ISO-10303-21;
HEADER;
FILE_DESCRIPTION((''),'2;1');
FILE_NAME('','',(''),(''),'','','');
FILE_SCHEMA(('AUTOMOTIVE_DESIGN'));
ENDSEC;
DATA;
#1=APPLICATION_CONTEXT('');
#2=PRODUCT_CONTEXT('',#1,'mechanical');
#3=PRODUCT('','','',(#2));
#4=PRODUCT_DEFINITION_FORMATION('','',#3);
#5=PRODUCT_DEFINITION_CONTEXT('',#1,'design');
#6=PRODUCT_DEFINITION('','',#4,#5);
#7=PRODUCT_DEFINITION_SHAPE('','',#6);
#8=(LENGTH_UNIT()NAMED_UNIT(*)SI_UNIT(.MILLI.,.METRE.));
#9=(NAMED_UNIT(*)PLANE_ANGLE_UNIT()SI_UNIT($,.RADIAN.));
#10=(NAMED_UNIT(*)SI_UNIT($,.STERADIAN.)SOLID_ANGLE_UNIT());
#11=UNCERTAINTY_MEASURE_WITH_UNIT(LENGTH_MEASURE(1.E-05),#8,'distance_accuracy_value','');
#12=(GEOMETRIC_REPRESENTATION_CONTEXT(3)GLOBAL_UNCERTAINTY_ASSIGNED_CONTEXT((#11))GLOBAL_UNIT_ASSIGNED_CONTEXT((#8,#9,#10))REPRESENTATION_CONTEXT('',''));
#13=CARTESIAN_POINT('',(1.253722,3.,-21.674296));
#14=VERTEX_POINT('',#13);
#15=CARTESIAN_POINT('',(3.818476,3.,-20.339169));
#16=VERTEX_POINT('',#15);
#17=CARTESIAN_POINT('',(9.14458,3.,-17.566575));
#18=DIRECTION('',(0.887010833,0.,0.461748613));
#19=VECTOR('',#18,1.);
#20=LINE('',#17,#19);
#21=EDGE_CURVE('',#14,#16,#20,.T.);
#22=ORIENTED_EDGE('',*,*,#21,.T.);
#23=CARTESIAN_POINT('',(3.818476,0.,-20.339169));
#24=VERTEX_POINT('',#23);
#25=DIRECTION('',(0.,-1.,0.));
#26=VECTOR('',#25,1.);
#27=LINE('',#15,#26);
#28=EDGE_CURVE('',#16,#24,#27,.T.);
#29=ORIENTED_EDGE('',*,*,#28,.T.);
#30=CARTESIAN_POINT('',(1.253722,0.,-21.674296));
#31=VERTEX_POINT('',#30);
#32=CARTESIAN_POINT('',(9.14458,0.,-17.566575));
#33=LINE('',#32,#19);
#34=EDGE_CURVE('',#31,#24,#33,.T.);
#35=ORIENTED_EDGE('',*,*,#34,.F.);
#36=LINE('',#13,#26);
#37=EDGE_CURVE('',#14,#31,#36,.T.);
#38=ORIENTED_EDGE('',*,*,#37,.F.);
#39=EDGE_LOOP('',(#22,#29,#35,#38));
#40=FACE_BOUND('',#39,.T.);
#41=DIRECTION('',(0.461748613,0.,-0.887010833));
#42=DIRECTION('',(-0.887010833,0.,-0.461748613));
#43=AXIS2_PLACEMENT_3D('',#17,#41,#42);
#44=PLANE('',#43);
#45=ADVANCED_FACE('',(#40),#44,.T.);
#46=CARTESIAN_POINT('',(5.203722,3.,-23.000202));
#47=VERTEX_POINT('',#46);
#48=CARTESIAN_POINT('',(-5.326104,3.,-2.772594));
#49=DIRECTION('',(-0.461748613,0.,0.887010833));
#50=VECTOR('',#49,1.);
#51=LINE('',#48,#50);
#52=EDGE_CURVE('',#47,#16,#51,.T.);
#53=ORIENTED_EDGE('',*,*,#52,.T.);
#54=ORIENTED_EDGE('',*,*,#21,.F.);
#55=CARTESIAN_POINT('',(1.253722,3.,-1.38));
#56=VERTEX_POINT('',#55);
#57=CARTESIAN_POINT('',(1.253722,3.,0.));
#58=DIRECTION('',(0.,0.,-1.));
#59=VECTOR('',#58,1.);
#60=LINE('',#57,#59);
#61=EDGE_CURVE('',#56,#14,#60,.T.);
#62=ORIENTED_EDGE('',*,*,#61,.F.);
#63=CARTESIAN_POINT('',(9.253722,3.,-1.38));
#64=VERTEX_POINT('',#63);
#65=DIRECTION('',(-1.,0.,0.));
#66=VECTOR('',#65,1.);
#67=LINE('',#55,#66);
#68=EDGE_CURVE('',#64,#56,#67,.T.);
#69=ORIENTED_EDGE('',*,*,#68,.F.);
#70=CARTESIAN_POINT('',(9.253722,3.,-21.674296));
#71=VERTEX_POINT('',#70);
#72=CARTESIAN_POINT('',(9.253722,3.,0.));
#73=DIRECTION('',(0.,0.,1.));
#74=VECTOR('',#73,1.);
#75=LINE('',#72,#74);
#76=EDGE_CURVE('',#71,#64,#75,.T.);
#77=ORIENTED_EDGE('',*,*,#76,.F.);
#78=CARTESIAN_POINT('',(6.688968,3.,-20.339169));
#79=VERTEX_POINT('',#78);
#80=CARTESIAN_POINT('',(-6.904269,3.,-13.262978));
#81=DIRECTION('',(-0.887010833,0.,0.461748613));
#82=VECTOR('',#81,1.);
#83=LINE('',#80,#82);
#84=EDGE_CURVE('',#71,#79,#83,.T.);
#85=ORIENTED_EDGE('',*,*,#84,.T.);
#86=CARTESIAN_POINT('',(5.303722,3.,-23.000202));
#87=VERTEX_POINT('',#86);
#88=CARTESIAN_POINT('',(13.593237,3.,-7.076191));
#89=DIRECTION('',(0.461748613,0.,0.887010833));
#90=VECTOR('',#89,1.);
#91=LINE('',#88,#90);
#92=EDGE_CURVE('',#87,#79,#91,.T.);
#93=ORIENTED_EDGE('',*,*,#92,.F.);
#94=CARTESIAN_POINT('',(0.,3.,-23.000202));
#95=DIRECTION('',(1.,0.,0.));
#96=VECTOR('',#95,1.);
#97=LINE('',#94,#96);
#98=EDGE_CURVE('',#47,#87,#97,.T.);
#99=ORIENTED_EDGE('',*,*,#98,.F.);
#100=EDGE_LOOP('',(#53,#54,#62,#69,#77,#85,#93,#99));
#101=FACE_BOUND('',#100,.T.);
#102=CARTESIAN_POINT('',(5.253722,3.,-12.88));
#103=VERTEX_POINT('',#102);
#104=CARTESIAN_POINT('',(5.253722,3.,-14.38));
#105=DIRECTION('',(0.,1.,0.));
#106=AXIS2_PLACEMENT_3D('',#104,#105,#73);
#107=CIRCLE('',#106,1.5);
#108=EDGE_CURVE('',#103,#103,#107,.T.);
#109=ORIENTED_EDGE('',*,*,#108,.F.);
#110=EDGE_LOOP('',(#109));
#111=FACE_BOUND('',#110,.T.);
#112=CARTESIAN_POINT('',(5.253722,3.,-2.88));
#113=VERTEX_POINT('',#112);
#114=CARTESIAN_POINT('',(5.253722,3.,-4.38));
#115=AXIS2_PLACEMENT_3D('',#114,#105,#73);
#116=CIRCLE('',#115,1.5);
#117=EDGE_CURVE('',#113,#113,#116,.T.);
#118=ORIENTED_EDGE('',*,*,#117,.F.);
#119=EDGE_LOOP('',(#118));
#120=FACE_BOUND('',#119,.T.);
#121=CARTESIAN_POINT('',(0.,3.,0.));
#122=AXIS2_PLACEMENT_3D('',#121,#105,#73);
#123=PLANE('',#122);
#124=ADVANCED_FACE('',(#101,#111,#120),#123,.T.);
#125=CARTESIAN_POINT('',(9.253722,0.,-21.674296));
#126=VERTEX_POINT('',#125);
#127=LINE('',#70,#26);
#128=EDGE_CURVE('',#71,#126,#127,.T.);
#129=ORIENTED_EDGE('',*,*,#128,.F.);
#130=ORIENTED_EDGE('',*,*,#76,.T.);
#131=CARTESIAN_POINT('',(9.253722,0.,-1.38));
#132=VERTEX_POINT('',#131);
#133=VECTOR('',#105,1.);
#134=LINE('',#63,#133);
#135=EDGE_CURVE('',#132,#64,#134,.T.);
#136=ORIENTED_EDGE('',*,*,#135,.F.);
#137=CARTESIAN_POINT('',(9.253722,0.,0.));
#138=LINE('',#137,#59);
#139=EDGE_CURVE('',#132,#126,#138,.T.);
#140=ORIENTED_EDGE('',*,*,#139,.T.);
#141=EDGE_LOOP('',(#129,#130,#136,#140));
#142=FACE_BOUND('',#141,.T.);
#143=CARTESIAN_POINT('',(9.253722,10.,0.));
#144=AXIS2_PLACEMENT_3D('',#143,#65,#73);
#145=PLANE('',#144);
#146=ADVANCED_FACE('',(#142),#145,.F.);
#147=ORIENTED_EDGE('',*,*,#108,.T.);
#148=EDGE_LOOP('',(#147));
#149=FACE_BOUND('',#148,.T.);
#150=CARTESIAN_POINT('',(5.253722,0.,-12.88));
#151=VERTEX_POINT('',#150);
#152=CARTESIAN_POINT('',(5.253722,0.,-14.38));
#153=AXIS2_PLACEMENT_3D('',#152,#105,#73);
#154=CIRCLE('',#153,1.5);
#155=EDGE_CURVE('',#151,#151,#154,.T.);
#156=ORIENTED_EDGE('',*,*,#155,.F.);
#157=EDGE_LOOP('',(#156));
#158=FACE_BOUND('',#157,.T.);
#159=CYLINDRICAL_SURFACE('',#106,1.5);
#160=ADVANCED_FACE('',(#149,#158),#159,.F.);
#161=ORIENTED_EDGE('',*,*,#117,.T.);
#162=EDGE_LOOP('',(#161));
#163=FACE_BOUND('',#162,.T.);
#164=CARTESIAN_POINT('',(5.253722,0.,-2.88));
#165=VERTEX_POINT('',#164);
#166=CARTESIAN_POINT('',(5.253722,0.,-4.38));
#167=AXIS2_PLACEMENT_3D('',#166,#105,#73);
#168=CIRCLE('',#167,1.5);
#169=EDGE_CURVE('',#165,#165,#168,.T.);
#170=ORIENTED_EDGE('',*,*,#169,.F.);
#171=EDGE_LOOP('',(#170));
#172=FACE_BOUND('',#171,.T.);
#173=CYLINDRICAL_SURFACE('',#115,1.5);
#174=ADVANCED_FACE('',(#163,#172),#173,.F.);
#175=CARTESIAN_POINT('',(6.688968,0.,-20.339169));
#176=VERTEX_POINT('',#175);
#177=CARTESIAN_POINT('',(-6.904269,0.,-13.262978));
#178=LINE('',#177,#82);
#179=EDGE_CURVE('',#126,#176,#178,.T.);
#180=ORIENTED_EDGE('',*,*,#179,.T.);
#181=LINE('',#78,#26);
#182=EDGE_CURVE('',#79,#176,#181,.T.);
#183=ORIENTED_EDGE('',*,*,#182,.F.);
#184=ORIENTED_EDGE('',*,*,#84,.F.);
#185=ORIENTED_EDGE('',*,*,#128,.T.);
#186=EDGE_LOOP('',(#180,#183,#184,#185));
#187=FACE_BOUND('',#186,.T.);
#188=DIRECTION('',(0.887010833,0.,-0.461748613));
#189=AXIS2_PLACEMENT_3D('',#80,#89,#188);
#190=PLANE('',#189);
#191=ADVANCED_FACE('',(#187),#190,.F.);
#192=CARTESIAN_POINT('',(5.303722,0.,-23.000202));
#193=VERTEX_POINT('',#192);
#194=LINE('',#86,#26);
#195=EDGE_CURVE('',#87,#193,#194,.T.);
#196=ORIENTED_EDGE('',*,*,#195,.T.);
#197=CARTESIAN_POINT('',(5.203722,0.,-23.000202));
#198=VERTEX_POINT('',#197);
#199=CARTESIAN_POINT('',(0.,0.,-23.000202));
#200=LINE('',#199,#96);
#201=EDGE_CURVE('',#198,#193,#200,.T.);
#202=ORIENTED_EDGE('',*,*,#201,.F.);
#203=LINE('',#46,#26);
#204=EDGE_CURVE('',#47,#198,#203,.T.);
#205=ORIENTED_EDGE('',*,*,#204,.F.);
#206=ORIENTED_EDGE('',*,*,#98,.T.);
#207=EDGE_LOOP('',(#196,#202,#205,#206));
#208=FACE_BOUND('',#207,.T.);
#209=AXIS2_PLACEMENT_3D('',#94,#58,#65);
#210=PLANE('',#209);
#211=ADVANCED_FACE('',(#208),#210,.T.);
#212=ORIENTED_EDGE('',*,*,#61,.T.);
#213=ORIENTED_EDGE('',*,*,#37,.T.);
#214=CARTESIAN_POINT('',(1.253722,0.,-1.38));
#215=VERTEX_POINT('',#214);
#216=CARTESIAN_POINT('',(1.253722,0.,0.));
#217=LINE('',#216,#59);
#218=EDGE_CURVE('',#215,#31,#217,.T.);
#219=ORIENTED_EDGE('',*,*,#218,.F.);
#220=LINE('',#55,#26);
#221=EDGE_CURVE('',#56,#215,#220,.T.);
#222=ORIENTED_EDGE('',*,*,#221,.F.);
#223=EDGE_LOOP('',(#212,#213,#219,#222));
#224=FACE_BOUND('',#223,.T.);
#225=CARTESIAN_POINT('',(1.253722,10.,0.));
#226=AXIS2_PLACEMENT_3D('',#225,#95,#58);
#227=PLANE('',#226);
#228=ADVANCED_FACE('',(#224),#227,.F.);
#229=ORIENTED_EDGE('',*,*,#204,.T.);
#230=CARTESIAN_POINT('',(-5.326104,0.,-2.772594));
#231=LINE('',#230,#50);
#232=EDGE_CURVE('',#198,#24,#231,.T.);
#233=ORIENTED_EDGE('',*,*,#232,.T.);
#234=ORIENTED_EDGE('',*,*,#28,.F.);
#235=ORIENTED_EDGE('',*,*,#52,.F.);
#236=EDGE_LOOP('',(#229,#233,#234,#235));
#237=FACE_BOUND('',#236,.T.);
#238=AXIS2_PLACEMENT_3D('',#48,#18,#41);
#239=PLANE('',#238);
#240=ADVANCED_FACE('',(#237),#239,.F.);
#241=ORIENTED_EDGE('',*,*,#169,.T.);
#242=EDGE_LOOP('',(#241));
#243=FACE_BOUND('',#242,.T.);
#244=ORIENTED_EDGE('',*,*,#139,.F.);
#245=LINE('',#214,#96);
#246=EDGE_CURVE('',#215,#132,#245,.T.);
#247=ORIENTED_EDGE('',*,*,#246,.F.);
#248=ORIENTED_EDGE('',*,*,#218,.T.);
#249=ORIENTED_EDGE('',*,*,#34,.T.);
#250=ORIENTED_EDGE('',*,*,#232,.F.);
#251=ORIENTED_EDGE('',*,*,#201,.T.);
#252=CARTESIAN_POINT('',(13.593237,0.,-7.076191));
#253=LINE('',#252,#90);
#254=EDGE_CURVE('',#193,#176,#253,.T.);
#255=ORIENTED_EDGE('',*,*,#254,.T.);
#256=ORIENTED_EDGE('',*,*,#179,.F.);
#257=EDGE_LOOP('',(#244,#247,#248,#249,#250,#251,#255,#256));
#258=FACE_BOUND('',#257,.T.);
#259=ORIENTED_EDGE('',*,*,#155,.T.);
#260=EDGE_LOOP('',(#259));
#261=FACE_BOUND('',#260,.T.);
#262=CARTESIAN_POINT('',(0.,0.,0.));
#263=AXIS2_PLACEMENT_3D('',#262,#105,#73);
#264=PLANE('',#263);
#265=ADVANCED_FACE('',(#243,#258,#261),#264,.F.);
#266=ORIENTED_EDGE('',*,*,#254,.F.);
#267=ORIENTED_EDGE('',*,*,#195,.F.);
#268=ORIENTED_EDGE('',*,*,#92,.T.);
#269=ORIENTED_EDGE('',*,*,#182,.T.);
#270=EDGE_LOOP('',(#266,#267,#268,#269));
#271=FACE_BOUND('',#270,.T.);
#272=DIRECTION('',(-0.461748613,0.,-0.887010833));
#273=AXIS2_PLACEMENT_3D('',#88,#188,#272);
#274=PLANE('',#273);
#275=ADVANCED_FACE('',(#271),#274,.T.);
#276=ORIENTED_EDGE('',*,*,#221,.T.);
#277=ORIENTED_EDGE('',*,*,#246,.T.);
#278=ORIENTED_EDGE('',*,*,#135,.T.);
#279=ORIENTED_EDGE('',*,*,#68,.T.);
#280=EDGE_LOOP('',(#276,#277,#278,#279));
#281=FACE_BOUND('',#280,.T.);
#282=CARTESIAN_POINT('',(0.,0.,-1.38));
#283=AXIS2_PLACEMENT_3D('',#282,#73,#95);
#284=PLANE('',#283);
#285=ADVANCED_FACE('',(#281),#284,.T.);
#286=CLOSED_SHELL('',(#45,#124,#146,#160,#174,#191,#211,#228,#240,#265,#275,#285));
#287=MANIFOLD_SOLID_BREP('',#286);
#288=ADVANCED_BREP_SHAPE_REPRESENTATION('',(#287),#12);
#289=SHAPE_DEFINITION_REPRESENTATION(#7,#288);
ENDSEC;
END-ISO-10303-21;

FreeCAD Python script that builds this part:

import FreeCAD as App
import Part
import Sketcher
from FreeCAD import Vector
Q = App.Units.Quantity

doc = App.newDocument("Part")
body = doc.addObject("PartDesign::Body", "Body")

sketch1 = doc.addObject("Sketcher::SketchObject", "Sketch")
body.addObject(sketch1)
sketch1.AttachmentSupport = (doc.XZ_Plane, [""])
sketch1.MapMode = "FlatFace"
sketch1.addGeometry([
    Part.LineSegment(Vector(5.3, -23, 0), Vector(5.2, -23, 0)),
    Part.LineSegment(Vector(5.2, -23, 0), Vector(3.82, -20.34, 0)),
    Part.LineSegment(Vector(3.82, -20.34, 0), Vector(1.16, -21.72, 0)),
    Part.LineSegment(Vector(1.16, -21.72, 0), Vector(0.75, -21.72, 0)),
    Part.LineSegment(Vector(0.75, -21.72, 0), Vector(0.75, 0, 0)),
    Part.LineSegment(Vector(0.75, 0, 0), Vector(9.75, 0, 0)),
    Part.LineSegment(Vector(9.75, 0, 0), Vector(9.75, -21.72, 0)),
    Part.LineSegment(Vector(9.75, -21.72, 0), Vector(9.35, -21.72, 0)),
    Part.LineSegment(Vector(9.35, -21.72, 0), Vector(6.69, -20.34, 0)),
    Part.LineSegment(Vector(6.69, -20.34, 0), Vector(5.3, -23, 0)),
], False)
sketch1.addConstraint([
    Sketcher.Constraint("Coincident", 0, 2, 1, 1),
    Sketcher.Constraint("Coincident", 1, 2, 2, 1),
    Sketcher.Constraint("Coincident", 2, 2, 3, 1),
    Sketcher.Constraint("Coincident", 3, 2, 4, 1),
    Sketcher.Constraint("Coincident", 4, 2, 5, 1),
    Sketcher.Constraint("Coincident", 5, 2, 6, 1),
    Sketcher.Constraint("Coincident", 6, 2, 7, 1),
    Sketcher.Constraint("Coincident", 7, 2, 8, 1),
    Sketcher.Constraint("Coincident", 8, 2, 9, 1),
    Sketcher.Constraint("Coincident", 9, 2, 0, 1),
    Sketcher.Constraint("Horizontal", 0),
    Sketcher.Constraint("Horizontal", 3),
    Sketcher.Constraint("Vertical", 4),
    Sketcher.Constraint("Horizontal", 5),
    Sketcher.Constraint("Vertical", 6),
    Sketcher.Constraint("Horizontal", 7),
    Sketcher.Constraint("PointOnObject", 4, 2, -1),
    Sketcher.Constraint("Perpendicular", 1, 2),
    Sketcher.Constraint("Perpendicular", 8, 9),
    Sketcher.Constraint("Horizontal", 3, 2, 6, 2),
    Sketcher.Constraint("Horizontal", 1, 2, 8, 2),
    Sketcher.Constraint("Equal", 3, 7),
    Sketcher.Constraint("Equal", 1, 2),
    Sketcher.Constraint("Equal", 2, 8),
    Sketcher.Constraint("DistanceX", 5, 1, 5, 2, 9.0),
    Sketcher.Constraint("Distance", 1, 3.0),
    Sketcher.Constraint("DistanceX", 0, 2, 0, 1, 0.1),
    Sketcher.Constraint("Angle", 1, Q("117.5 deg")),
    Sketcher.Constraint("DistanceX", -1, 1, 7, 2, 9.35),
    Sketcher.Constraint("DistanceY", 0, 2, -1, 1, 23.000202),
])
pad1 = doc.addObject("PartDesign::Pad", "Pad")
body.addObject(pad1)
pad1.Profile = sketch1
pad1.Length = 3
pad1.Reversed = True

sketch2 = doc.addObject("Sketcher::SketchObject", "Sketch001")
body.addObject(sketch2)
sketch2.AttachmentSupport = (doc.XZ_Plane, [""])
sketch2.MapMode = "FlatFace"
sketch2.AttachmentOffset = App.Placement(Vector(0, 0, -3), App.Rotation())
sketch2.addGeometry([
    Part.Circle(Vector(5.3, -14.4, 0), Vector(0, 0, 1), 1.5),
    Part.Circle(Vector(5.3, -4.4, 0), Vector(0, 0, 1), 1.5),
], False)
sketch2.addConstraint([
    Sketcher.Constraint("Equal", 0, 1),
    Sketcher.Constraint("Vertical", 0, 3, 1, 3),
    Sketcher.Constraint("Diameter", 0, 3.0),
    Sketcher.Constraint("DistanceY", 0, 3, 1, 3, 10.0),
    Sketcher.Constraint("DistanceY", 0, 3, -1, 1, 14.38),
    Sketcher.Constraint("DistanceX", -1, 1, 0, 3, 5.253722),
])
doc.recompute()
hole = doc.addObject("PartDesign::Hole", "Hole")
body.addObject(hole)
hole.Profile = sketch2
hole.ThreadType = "None"
hole.Diameter = 3
hole.DepthType = "Dimension"
hole.Depth = 10
hole.DrillPoint = "Angled"
hole.DrillPointAngle = 118
hole.Reversed = True

sketch3 = doc.addObject("Sketcher::SketchObject", "Sketch002")
body.addObject(sketch3)
sketch3.AttachmentSupport = (doc.XZ_Plane, [""])
sketch3.MapMode = "FlatFace"
sketch3.addGeometry([
    Part.LineSegment(Vector(1.25, -21.72, 0), Vector(1.25, 0, 0)),
    Part.LineSegment(Vector(1.25, 0, 0), Vector(0.75, 0, 0)),
    Part.LineSegment(Vector(0.75, 0, 0), Vector(0.75, -21.72, 0)),
    Part.LineSegment(Vector(0.75, -21.72, 0), Vector(1.25, -21.72, 0)),
    Part.LineSegment(Vector(9.75, -21.72, 0), Vector(9.75, 0, 0)),
    Part.LineSegment(Vector(9.75, 0, 0), Vector(9.25, 0, 0)),
    Part.LineSegment(Vector(9.25, 0, 0), Vector(9.25, -21.72, 0)),
    Part.LineSegment(Vector(9.25, -21.72, 0), Vector(9.75, -21.72, 0)),
], False)
sketch3.addConstraint([
    Sketcher.Constraint("Coincident", 0, 2, 1, 1),
    Sketcher.Constraint("Coincident", 1, 2, 2, 1),
    Sketcher.Constraint("Coincident", 2, 2, 3, 1),
    Sketcher.Constraint("Coincident", 3, 2, 0, 1),
    Sketcher.Constraint("Coincident", 4, 2, 5, 1),
    Sketcher.Constraint("Coincident", 5, 2, 6, 1),
    Sketcher.Constraint("Coincident", 6, 2, 7, 1),
    Sketcher.Constraint("Coincident", 7, 2, 4, 1),
    Sketcher.Constraint("Vertical", 0),
    Sketcher.Constraint("Horizontal", 1),
    Sketcher.Constraint("Vertical", 2),
    Sketcher.Constraint("Horizontal", 3),
    Sketcher.Constraint("Vertical", 4),
    Sketcher.Constraint("Horizontal", 5),
    Sketcher.Constraint("Vertical", 6),
    Sketcher.Constraint("Horizontal", 7),
    Sketcher.Constraint("PointOnObject", 0, 2, -1),
    Sketcher.Constraint("PointOnObject", 4, 2, -1),
    Sketcher.Constraint("Horizontal", 3, 2, 6, 2),
    Sketcher.Constraint("Equal", 3, 5),
    Sketcher.Constraint("DistanceX", 1, 2, 1, 1, 0.5),
    Sketcher.Constraint("DistanceX", 1, 2, 4, 2, 9.0),
    Sketcher.Constraint("DistanceY", 0, 1, 0, 2, 21.724415),
    Sketcher.Constraint("DistanceX", -1, 1, 0, 2, 1.253722),
])
pocket1 = doc.addObject("PartDesign::Pocket", "Pocket")
body.addObject(pocket1)
pocket1.Profile = sketch3
pocket1.Length = 10

sketch4 = doc.addObject("Sketcher::SketchObject", "Sketch003")
body.addObject(sketch4)
sketch4.AttachmentSupport = (doc.XY_Plane, [""])
sketch4.MapMode = "FlatFace"
sketch4.addGeometry([
    Part.LineSegment(Vector(1.3, 3, 0), Vector(1.3, 0, 0)),
    Part.LineSegment(Vector(1.3, 0, 0), Vector(9.3, 0, 0)),
    Part.LineSegment(Vector(9.3, 0, 0), Vector(9.3, 3, 0)),
    Part.LineSegment(Vector(9.3, 3, 0), Vector(1.3, 3, 0)),
], False)
sketch4.addConstraint([
    Sketcher.Constraint("Coincident", 0, 2, 1, 1),
    Sketcher.Constraint("Coincident", 1, 2, 2, 1),
    Sketcher.Constraint("Coincident", 2, 2, 3, 1),
    Sketcher.Constraint("Coincident", 3, 2, 0, 1),
    Sketcher.Constraint("Vertical", 0),
    Sketcher.Constraint("Horizontal", 1),
    Sketcher.Constraint("Vertical", 2),
    Sketcher.Constraint("Horizontal", 3),
    Sketcher.Constraint("PointOnObject", 0, 2, -1),
    Sketcher.Constraint("DistanceX", 1, 1, 1, 2, 8.0),
    Sketcher.Constraint("DistanceY", 0, 2, 0, 1, 3.0),
    Sketcher.Constraint("DistanceX", -1, 1, 0, 2, 1.253722),
])
pocket2 = doc.addObject("PartDesign::Pocket", "Pocket001")
body.addObject(pocket2)
pocket2.Profile = sketch4
pocket2.Length = 1.38

doc.recompute()
